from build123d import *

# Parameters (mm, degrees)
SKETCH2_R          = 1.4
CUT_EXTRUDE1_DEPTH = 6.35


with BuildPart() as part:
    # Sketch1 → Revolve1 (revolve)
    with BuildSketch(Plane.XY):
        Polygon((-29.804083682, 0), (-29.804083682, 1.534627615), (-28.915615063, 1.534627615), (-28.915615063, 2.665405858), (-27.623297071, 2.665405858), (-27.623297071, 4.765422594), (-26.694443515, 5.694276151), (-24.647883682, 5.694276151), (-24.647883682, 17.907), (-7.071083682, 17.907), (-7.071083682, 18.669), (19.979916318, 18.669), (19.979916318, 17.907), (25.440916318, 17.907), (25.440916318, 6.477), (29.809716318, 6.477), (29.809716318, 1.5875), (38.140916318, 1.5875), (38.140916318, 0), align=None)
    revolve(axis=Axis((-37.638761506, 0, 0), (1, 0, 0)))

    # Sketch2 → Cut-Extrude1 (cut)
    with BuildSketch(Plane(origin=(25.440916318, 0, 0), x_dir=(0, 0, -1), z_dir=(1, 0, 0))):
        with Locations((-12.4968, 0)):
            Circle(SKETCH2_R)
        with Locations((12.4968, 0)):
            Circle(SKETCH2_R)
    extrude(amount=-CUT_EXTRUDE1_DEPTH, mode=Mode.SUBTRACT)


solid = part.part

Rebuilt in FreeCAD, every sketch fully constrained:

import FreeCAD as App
import Part
import Sketcher
Q = App.Units.Quantity

doc = App.newDocument("Part")
params = doc.addObject("Spreadsheet::Sheet", "Params")
for row, (alias, value) in enumerate([
    ("sketch1_height", "0.45 in"),
    ("sketch1_height2", "0.03 in"),
    ("sketch1_width", "2.675 in"),
    ("sketch1_width2", "0.328 in"),
    ("sketch1_width3", "0.215 in"),
    ("revolution_angle", "360 deg"),
    ("pocket1_length", "0.25 in"),
], start=1):
    params.set(f"A{row}", alias)
    params.set(f"B{row}", "=" + value)
    params.setAlias(f"B{row}", alias)

body = doc.addObject("PartDesign::Body", "Body")

sketch1 = body.newObject("Sketcher::SketchObject", "Sketch")
sketch1.AttachmentSupport = (doc.getObject("XY_Plane"), [""])
sketch1.MapMode = "FlatFace"
sketch1.addGeometry(Part.LineSegment(App.Vector(-29.8, 1.5, 0), App.Vector(-29.8, 0, 0)), False)
sketch1.addGeometry(Part.LineSegment(App.Vector(-29.8, 0, 0), App.Vector(38.1, 0, 0)), False)
sketch1.addGeometry(Part.LineSegment(App.Vector(38.1, 0, 0), App.Vector(38.1, 1.6, 0)), False)
sketch1.addGeometry(Part.LineSegment(App.Vector(38.1, 1.6, 0), App.Vector(29.8, 1.6, 0)), False)
sketch1.addGeometry(Part.LineSegment(App.Vector(29.8, 1.6, 0), App.Vector(29.8, 6.5, 0)), False)
sketch1.addGeometry(Part.LineSegment(App.Vector(29.8, 6.5, 0), App.Vector(25.4, 6.5, 0)), False)
sketch1.addGeometry(Part.LineSegment(App.Vector(25.4, 6.5, 0), App.Vector(25.4, 17.9, 0)), False)
sketch1.addGeometry(Part.LineSegment(App.Vector(25.4, 17.9, 0), App.Vector(20, 17.9, 0)), False)
sketch1.addGeometry(Part.LineSegment(App.Vector(20, 17.9, 0), App.Vector(20, 18.7, 0)), False)
sketch1.addGeometry(Part.LineSegment(App.Vector(20, 18.7, 0), App.Vector(-7.1, 18.7, 0)), False)
sketch1.addGeometry(Part.LineSegment(App.Vector(-7.1, 18.7, 0), App.Vector(-7.1, 17.9, 0)), False)
sketch1.addGeometry(Part.LineSegment(App.Vector(-7.1, 17.9, 0), App.Vector(-24.6, 17.9, 0)), False)
sketch1.addGeometry(Part.LineSegment(App.Vector(-24.6, 17.9, 0), App.Vector(-24.6, 5.7, 0)), False)
sketch1.addGeometry(Part.LineSegment(App.Vector(-24.6, 5.7, 0), App.Vector(-26.7, 5.7, 0)), False)
sketch1.addGeometry(Part.LineSegment(App.Vector(-26.7, 5.7, 0), App.Vector(-27.6, 4.8, 0)), False)
sketch1.addGeometry(Part.LineSegment(App.Vector(-27.6, 4.8, 0), App.Vector(-27.6, 2.7, 0)), False)
sketch1.addGeometry(Part.LineSegment(App.Vector(-27.6, 2.7, 0), App.Vector(-28.9, 2.7, 0)), False)
sketch1.addGeometry(Part.LineSegment(App.Vector(-28.9, 2.7, 0), App.Vector(-28.9, 1.5, 0)), False)
sketch1.addGeometry(Part.LineSegment(App.Vector(-28.9, 1.5, 0), App.Vector(-29.8, 1.5, 0)), False)
sketch1.addConstraint(Sketcher.Constraint("Coincident", 0, 2, 1, 1))
sketch1.addConstraint(Sketcher.Constraint("Coincident", 1, 2, 2, 1))
sketch1.addConstraint(Sketcher.Constraint("Coincident", 2, 2, 3, 1))
sketch1.addConstraint(Sketcher.Constraint("Coincident", 3, 2, 4, 1))
sketch1.addConstraint(Sketcher.Constraint("Coincident", 4, 2, 5, 1))
sketch1.addConstraint(Sketcher.Constraint("Coincident", 5, 2, 6, 1))
sketch1.addConstraint(Sketcher.Constraint("Coincident", 6, 2, 7, 1))
sketch1.addConstraint(Sketcher.Constraint("Coincident", 7, 2, 8, 1))
sketch1.addConstraint(Sketcher.Constraint("Coincident", 8, 2, 9, 1))
sketch1.addConstraint(Sketcher.Constraint("Coincident", 9, 2, 10, 1))
sketch1.addConstraint(Sketcher.Constraint("Coincident", 10, 2, 11, 1))
sketch1.addConstraint(Sketcher.Constraint("Coincident", 11, 2, 12, 1))
sketch1.addConstraint(Sketcher.Constraint("Coincident", 12, 2, 13, 1))
sketch1.addConstraint(Sketcher.Constraint("Coincident", 13, 2, 14, 1))
sketch1.addConstraint(Sketcher.Constraint("Coincident", 14, 2, 15, 1))
sketch1.addConstraint(Sketcher.Constraint("Coincident", 15, 2, 16, 1))
sketch1.addConstraint(Sketcher.Constraint("Coincident", 16, 2, 17, 1))
sketch1.addConstraint(Sketcher.Constraint("Coincident", 17, 2, 18, 1))
sketch1.addConstraint(Sketcher.Constraint("Coincident", 18, 2, 0, 1))
sketch1.addConstraint(Sketcher.Constraint("Vertical", 0))
sketch1.addConstraint(Sketcher.Constraint("Horizontal", 1))
sketch1.addConstraint(Sketcher.Constraint("Vertical", 2))
sketch1.addConstraint(Sketcher.Constraint("Horizontal", 3))
sketch1.addConstraint(Sketcher.Constraint("Vertical", 4))
sketch1.addConstraint(Sketcher.Constraint("Horizontal", 5))
sketch1.addConstraint(Sketcher.Constraint("Vertical", 6))
sketch1.addConstraint(Sketcher.Constraint("Horizontal", 7))
sketch1.addConstraint(Sketcher.Constraint("Vertical", 8))
sketch1.addConstraint(Sketcher.Constraint("Horizontal", 9))
sketch1.addConstraint(Sketcher.Constraint("Vertical", 10))
sketch1.addConstraint(Sketcher.Constraint("Horizontal", 11))
sketch1.addConstraint(Sketcher.Constraint("Vertical", 12))
sketch1.addConstraint(Sketcher.Constraint("Horizontal", 13))
sketch1.addConstraint(Sketcher.Constraint("Vertical", 15))
sketch1.addConstraint(Sketcher.Constraint("Horizontal", 16))
sketch1.addConstraint(Sketcher.Constraint("Vertical", 17))
sketch1.addConstraint(Sketcher.Constraint("Horizontal", 18))
sketch1.addConstraint(Sketcher.Constraint("PointOnObject", 0, 2, -1))
sketch1.addConstraint(Sketcher.Constraint("Horizontal", 7, 2, 10, 2))
sketch1.addConstraint(Sketcher.Constraint("Angle", 14, Q("-135 deg")))
sketch1.addConstraint(Sketcher.Constraint("DistanceY", 6, 1, 6, 2, Q("0.45 in")))
sketch1.addConstraint(Sketcher.Constraint("DistanceY", 8, 1, 8, 2, Q("0.03 in")))
sketch1.addConstraint(Sketcher.Constraint("DistanceX", 5, 2, 2, 2, Q("0.5 in")))
sketch1.addConstraint(Sketcher.Constraint("DistanceX", 1, 1, 1, 2, Q("2.675 in")))
sketch1.addConstraint(Sketcher.Constraint("DistanceX", 3, 2, 3, 1, Q("0.328 in")))
sketch1.addConstraint(Sketcher.Constraint("DistanceX", 7, 2, 7, 1, Q("0.215 in")))
sketch1.addConstraint(Sketcher.Constraint("DistanceX", 9, 2, 9, 1, Q("1.065 in")))
sketch1.addConstraint(Sketcher.Constraint("DistanceX", 11, 2, 11, 1, Q("0.692 in")))
sketch1.addConstraint(Sketcher.Constraint("DistanceY", 2, 1, 2, 2, Q("0.0625 in")))
sketch1.addConstraint(Sketcher.Constraint("DistanceY", 4, 1, 4, 2, Q("0.1925 in")))
sketch1.addConstraint(Sketcher.Constraint("DistanceX", 13, 2, 13, 1, Q("2.04656 mm")))
sketch1.addConstraint(Sketcher.Constraint("DistanceX", 18, 2, 18, 1, Q("0.888469 mm")))
sketch1.addConstraint(Sketcher.Constraint("DistanceY", 17, 2, 17, 1, Q("1.130778 mm")))
sketch1.addConstraint(Sketcher.Constraint("DistanceX", 16, 2, 16, 1, Q("1.292318 mm")))
sketch1.addConstraint(Sketcher.Constraint("DistanceY", 0, 2, 0, 1, Q("1.534628 mm")))
sketch1.addConstraint(Sketcher.Constraint("DistanceY", 12, 2, 12, 1, Q("12.212724 mm")))
sketch1.addConstraint(Sketcher.Constraint("DistanceX", 0, 2, -1, 1, Q("29.804084 mm")))
sketch1.setExpression("Constraints[40]", "Params.sketch1_height")
sketch1.setExpression("Constraints[41]", "Params.sketch1_height2")
sketch1.setExpression("Constraints[43]", "Params.sketch1_width")
sketch1.setExpression("Constraints[44]", "Params.sketch1_width2")
sketch1.setExpression("Constraints[45]", "Params.sketch1_width3")
revolution = body.newObject("PartDesign::Revolution", "Revolution")
revolution.Profile = sketch1
revolution.ReferenceAxis = (sketch1, ["H_Axis"])
revolution.setExpression("Angle", "Params.revolution_angle")

sketch2 = body.newObject("Sketcher::SketchObject", "Sketch001")
sketch2.AttachmentSupport = (doc.getObject("YZ_Plane"), [""])
sketch2.MapMode = "FlatFace"
sketch2.AttachmentOffset = App.Placement(App.Vector(0, 0, 25.440916), App.Rotation())
sketch2.addGeometry(Part.Circle(App.Vector(0, 12.5, 0), App.Vector(0, 0, 1), 1.4), False)
sketch2.addGeometry(Part.Circle(App.Vector(0, -12.5, 0), App.Vector(0, 0, 1), 1.4), False)
sketch2.addConstraint(Sketcher.Constraint("Equal", 0, 1))
sketch2.addConstraint(Sketcher.Constraint("Symmetric", 0, 3, 1, 3, -1, 1))
sketch2.addConstraint(Sketcher.Constraint("PointOnObject", 0, 3, -2))
sketch2.addConstraint(Sketcher.Constraint("Diameter", 0, Q("2.8 mm")))
sketch2.addConstraint(Sketcher.Constraint("DistanceY", -1, 1, 0, 3, Q("0.492 in")))
pocket1 = body.newObject("PartDesign::Pocket", "Pocket")
pocket1.Profile = sketch2
pocket1.setExpression("Length", "Params.pocket1_length")

doc.recompute()
